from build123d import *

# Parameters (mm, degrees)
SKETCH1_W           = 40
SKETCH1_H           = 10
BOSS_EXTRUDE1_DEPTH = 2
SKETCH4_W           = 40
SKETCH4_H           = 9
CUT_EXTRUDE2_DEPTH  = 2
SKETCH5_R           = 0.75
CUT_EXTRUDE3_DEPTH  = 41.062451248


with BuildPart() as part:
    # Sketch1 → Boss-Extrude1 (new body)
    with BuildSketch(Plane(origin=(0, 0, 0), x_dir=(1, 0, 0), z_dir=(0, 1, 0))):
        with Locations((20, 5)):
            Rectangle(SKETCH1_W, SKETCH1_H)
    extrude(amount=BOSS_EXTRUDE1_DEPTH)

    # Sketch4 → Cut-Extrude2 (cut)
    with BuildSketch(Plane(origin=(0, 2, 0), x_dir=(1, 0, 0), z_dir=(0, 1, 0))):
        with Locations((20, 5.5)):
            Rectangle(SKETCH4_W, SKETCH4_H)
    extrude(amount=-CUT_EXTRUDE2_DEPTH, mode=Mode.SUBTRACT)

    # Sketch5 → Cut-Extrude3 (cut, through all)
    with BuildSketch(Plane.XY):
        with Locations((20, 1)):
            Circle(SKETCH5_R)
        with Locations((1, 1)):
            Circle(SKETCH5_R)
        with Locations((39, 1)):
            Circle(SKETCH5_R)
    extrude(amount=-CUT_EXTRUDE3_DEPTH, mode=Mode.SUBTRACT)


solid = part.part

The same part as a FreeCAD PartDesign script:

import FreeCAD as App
import Part
import Sketcher
from FreeCAD import Vector


def add_polygon(sketch, points):
    """Adds a closed chain of lines whose ends are joined by coincident constraints."""
    first, n = sketch.GeometryCount, len(points)
    for a, b in zip(points, points[1:] + points[:1]):
        sketch.addGeometry(Part.LineSegment(App.Vector(*a, 0), App.Vector(*b, 0)), False)
    for i in range(n):
        sketch.addConstraint(Sketcher.Constraint("Coincident", first + i, 2, first + (i + 1) % n, 1))

doc = App.newDocument("Part")
body = doc.addObject("PartDesign::Body", "Body")

# Sketch on XZ plane
sketch1 = body.newObject("Sketcher::SketchObject", "Sketch")
sketch1.AttachmentSupport = (doc.getObject("XZ_Plane"), [""])
sketch1.MapMode = "FlatFace"
add_polygon(sketch1, [(0, -10), (0, 0), (40, 0), (40, -10)])  # lines 0-3
sketch1.addConstraint([
    Sketcher.Constraint("Vertical", 0),
    Sketcher.Constraint("Horizontal", 1),
    Sketcher.Constraint("Vertical", 2),
    Sketcher.Constraint("Horizontal", 3),
    Sketcher.Constraint("Coincident", 0, 2, -1, 1),
    Sketcher.Constraint("DistanceX", 1, 1, 1, 2, 40.0),
    Sketcher.Constraint("DistanceY", 0, 1, 0, 2, 10.0),
])
pad1 = body.newObject("PartDesign::Pad", "Pad")
pad1.Profile = sketch1
pad1.Length = 2
pad1.Reversed = True

# Sketch on XZ plane
sketch2 = body.newObject("Sketcher::SketchObject", "Sketch001")
sketch2.AttachmentSupport = (doc.getObject("XZ_Plane"), [""])
sketch2.MapMode = "FlatFace"
sketch2.AttachmentOffset = App.Placement(Vector(0, 0, -2), App.Rotation())
add_polygon(sketch2, [(0, -10), (0, -1), (40, -1), (40, -10)])  # lines 0-3
sketch2.addConstraint([
    Sketcher.Constraint("Vertical", 0),
    Sketcher.Constraint("Horizontal", 1),
    Sketcher.Constraint("Vertical", 2),
    Sketcher.Constraint("Horizontal", 3),
    Sketcher.Constraint("PointOnObject", 0, 2, -2),
    Sketcher.Constraint("DistanceX", 1, 1, 1, 2, 40.0),
    Sketcher.Constraint("DistanceY", 0, 1, 0, 2, 9.0),
    Sketcher.Constraint("DistanceY", 0, 2, -1, 1, 1.0),
])
pocket1 = body.newObject("PartDesign::Pocket", "Pocket")
pocket1.Profile = sketch2
pocket1.Length = 2
pocket1.Reversed = True

# Sketch on XY plane
sketch3 = body.newObject("Sketcher::SketchObject", "Sketch002")
sketch3.AttachmentSupport = (doc.getObject("XY_Plane"), [""])
sketch3.MapMode = "FlatFace"
sketch3.addGeometry([
    Part.Circle(Vector(20, 1, 0), Vector(0, 0, 1), 0.8),
    Part.Circle(Vector(1, 1, 0), Vector(0, 0, 1), 0.8),
    Part.Circle(Vector(39, 1, 0), Vector(0, 0, 1), 0.8),
], False)
sketch3.addConstraint([
    Sketcher.Constraint("Equal", 0, 1),
    Sketcher.Constraint("Equal", 1, 2),
    Sketcher.Constraint("Horizontal", 0, 3, 1, 3),
    Sketcher.Constraint("Horizontal", 1, 3, 2, 3),
    Sketcher.Constraint("Diameter", 0, 1.5),
    Sketcher.Constraint("DistanceX", -1, 1, 0, 3, 20.0),
    Sketcher.Constraint("DistanceY", -1, 1, 0, 3, 1.0),
    Sketcher.Constraint("DistanceX", -1, 1, 1, 3, 1.0),
    Sketcher.Constraint("DistanceX", -1, 1, 2, 3, 39.0),
])
pocket2 = body.newObject("PartDesign::Pocket", "Pocket001")
pocket2.Profile = sketch3
pocket2.Type = "ThroughAll"

doc.recompute()
